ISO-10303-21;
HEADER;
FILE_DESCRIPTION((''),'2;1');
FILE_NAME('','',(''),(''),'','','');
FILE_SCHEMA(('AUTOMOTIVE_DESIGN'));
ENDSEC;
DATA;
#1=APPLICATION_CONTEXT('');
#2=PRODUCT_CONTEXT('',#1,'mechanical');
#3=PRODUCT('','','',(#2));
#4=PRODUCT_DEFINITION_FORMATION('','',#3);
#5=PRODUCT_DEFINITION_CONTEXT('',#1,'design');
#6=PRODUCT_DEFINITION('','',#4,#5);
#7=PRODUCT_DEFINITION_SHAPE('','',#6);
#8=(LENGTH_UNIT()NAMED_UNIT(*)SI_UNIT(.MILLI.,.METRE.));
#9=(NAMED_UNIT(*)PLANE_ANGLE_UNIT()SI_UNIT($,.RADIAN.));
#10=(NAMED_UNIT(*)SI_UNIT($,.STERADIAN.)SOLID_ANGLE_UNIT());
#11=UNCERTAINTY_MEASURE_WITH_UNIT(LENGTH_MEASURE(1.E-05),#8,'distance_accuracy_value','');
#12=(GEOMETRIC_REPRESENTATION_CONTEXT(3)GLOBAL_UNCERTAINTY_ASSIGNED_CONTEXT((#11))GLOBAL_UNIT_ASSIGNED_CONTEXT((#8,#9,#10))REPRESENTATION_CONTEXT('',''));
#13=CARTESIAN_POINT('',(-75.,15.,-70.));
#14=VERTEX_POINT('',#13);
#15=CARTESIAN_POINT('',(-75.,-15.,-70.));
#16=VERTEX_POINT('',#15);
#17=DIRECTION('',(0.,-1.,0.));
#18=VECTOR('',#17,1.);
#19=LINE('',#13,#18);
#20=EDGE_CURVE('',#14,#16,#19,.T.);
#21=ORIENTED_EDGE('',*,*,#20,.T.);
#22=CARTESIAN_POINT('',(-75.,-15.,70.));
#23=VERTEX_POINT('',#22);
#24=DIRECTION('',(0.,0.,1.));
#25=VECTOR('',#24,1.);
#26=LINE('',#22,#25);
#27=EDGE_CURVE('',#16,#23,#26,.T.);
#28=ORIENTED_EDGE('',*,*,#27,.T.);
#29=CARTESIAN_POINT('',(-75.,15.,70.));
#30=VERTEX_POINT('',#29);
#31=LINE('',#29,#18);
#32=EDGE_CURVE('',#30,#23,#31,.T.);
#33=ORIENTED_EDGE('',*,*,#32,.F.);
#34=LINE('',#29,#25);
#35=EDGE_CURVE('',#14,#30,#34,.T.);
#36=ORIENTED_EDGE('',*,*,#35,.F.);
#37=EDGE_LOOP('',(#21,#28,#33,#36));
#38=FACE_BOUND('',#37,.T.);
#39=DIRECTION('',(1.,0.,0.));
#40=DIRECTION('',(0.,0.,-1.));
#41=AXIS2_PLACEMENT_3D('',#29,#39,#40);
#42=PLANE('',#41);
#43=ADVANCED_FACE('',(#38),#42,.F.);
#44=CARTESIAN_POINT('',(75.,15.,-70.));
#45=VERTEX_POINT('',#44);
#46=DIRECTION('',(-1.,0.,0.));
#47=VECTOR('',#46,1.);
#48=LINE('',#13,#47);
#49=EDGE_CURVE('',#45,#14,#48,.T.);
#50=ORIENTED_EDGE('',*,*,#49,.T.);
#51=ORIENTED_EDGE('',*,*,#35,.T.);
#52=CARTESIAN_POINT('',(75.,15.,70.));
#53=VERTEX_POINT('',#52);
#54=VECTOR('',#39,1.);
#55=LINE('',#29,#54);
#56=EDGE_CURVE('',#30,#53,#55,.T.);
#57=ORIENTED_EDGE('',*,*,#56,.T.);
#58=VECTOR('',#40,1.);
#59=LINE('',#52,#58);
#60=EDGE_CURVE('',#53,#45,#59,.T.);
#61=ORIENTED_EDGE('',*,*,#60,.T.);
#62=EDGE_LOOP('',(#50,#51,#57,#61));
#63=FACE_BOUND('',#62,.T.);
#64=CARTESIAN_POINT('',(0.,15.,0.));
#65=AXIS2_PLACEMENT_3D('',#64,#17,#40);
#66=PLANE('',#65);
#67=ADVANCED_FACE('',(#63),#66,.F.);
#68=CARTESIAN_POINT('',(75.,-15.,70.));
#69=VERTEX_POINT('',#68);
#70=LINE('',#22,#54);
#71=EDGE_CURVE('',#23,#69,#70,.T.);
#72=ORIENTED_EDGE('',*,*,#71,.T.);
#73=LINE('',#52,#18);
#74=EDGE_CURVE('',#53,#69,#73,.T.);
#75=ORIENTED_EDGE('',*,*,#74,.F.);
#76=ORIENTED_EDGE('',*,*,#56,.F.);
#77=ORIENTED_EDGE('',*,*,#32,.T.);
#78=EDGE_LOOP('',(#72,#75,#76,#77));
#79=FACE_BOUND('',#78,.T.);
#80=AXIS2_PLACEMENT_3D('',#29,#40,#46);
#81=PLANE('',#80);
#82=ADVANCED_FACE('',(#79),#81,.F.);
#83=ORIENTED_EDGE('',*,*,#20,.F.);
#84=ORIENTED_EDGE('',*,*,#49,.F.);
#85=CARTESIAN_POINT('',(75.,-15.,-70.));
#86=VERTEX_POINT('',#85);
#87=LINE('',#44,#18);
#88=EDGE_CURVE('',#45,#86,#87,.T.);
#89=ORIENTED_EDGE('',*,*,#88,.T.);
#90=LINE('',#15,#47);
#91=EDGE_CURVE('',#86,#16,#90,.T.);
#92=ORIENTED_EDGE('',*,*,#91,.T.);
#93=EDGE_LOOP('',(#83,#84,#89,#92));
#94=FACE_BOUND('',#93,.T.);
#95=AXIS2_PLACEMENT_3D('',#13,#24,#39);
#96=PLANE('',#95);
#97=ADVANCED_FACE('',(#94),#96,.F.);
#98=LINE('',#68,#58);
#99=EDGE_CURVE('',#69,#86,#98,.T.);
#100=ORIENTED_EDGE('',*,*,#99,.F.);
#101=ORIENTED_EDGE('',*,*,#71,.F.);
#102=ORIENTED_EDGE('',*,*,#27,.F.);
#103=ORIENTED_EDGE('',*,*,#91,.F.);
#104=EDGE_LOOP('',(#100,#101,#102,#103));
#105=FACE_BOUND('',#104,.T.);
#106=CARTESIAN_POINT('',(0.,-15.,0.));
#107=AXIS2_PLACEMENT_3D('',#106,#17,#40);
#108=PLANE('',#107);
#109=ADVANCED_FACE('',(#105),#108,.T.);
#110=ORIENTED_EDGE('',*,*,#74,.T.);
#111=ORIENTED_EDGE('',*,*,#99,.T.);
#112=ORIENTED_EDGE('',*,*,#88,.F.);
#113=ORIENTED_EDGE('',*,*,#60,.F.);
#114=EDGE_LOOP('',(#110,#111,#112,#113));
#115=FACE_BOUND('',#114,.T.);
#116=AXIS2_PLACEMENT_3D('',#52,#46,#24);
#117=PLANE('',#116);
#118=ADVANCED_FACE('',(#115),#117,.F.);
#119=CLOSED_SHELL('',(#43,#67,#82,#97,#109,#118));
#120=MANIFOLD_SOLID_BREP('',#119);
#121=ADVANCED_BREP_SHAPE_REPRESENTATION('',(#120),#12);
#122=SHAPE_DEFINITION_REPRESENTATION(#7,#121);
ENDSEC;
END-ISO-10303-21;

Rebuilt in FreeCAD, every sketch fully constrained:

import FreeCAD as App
import Part
import Sketcher
from FreeCAD import Vector


def add_polygon(sketch, points):
    """Adds a closed chain of lines whose ends are joined by coincident constraints."""
    first, n = sketch.GeometryCount, len(points)
    for a, b in zip(points, points[1:] + points[:1]):
        sketch.addGeometry(Part.LineSegment(App.Vector(*a, 0), App.Vector(*b, 0)), False)
    for i in range(n):
        sketch.addConstraint(Sketcher.Constraint("Coincident", first + i, 2, first + (i + 1) % n, 1))

doc = App.newDocument("Part")
body = doc.addObject("PartDesign::Body", "Body")

# Sketch on XZ plane
sketch1 = body.newObject("Sketcher::SketchObject", "Sketch")
sketch1.AttachmentSupport = (doc.getObject("XZ_Plane"), [""])
sketch1.MapMode = "FlatFace"
add_polygon(sketch1, [(-75, -70), (-75, 70), (75, 70), (75, -70)])  # lines 0-3
sketch1.addConstraint(Sketcher.Constraint("Vertical", 0))
sketch1.addConstraint(Sketcher.Constraint("Horizontal", 1))
sketch1.addConstraint(Sketcher.Constraint("Vertical", 2))
sketch1.addConstraint(Sketcher.Constraint("Horizontal", 3))
sketch1.addConstraint(Sketcher.Constraint("Symmetric", 0, 2, 2, 2, -1, 1))
sketch1.addConstraint(Sketcher.Constraint("DistanceX", 1, 1, 1, 2, 150.0))
sketch1.addConstraint(Sketcher.Constraint("DistanceY", 0, 1, 0, 2, 140.0))
pad1 = body.newObject("PartDesign::Pad", "Pad")
pad1.Profile = sketch1
pad1.Length = 30
pad1.Midplane = True

doc.recompute()
